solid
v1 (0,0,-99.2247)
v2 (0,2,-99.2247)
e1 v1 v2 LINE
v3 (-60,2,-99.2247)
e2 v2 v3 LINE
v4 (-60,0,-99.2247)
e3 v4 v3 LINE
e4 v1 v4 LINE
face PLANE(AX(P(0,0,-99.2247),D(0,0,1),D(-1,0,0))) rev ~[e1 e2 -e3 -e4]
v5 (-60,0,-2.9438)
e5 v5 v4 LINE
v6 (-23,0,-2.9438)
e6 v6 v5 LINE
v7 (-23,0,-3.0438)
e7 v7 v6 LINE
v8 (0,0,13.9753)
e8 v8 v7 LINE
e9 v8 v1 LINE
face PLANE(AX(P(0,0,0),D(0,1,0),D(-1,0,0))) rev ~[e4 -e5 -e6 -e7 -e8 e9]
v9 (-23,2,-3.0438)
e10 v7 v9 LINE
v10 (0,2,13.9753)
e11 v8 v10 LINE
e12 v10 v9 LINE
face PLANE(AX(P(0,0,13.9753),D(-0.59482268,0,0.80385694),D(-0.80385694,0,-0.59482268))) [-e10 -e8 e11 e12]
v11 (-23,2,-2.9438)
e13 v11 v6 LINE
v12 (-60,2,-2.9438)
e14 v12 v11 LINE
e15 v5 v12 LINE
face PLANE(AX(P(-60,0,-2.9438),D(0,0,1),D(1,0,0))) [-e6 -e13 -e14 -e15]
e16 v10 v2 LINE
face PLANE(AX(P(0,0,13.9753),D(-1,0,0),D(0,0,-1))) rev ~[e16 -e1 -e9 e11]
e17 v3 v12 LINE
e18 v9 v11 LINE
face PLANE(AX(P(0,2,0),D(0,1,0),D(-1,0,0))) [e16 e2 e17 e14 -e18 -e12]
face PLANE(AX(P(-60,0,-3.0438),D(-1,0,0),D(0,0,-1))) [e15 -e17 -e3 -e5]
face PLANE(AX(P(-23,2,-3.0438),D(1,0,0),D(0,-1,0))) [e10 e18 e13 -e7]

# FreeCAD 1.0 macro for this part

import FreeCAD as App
import Part
import Sketcher

V = App.Vector
Q = App.Units.Quantity


def add_polygon(sketch, points):
    """Adds a closed chain of lines whose ends are joined by coincident constraints."""
    first, n = sketch.GeometryCount, len(points)
    for a, b in zip(points, points[1:] + points[:1]):
        sketch.addGeometry(Part.LineSegment(App.Vector(*a, 0), App.Vector(*b, 0)), False)
    for i in range(n):
        sketch.addConstraint(Sketcher.Constraint("Coincident", first + i, 2, first + (i + 1) % n, 1))

doc = App.newDocument("Part")
body = doc.addObject("PartDesign::Body", "Body")

# Sketch on XZ plane
sketch1 = body.newObject("Sketcher::SketchObject", "Sketch")
sketch1.AttachmentSupport = (doc.getObject("XZ_Plane"), [""])
sketch1.MapMode = "FlatFace"
add_polygon(sketch1, [(-23, -3.0438), (0, 13.9753), (0, -99.2247), (-60, -99.2247), (-60, -3.0438)])  # lines 0-4
sketch1.addConstraint([
    Sketcher.Constraint("Vertical", 1),
    Sketcher.Constraint("Horizontal", 2),
    Sketcher.Constraint("Vertical", 3),
    Sketcher.Constraint("Horizontal", 4),
    Sketcher.Constraint("PointOnObject", 0, 2, -2),
    Sketcher.Constraint("DistanceX", 2, 2, 2, 1, Q("60 mm")),
    Sketcher.Constraint("DistanceX", 4, 1, 4, 2, Q("37 mm")),
    Sketcher.Constraint("DistanceY", 1, 2, 1, 1, Q("113.2 mm")),
    Sketcher.Constraint("Angle", 0, Q("36.5 deg")),
    Sketcher.Constraint("DistanceY", -1, 1, 0, 2, Q("13.9753 mm")),
])
pad1 = body.newObject("PartDesign::Pad", "Pad")
pad1.Profile = sketch1
pad1.Length = 2
pad1.Reversed = True

# Sketch on XY plane
sketch2 = body.newObject("Sketcher::SketchObject", "Sketch001")
sketch2.AttachmentSupport = (doc.getObject("XY_Plane"), [""])
sketch2.MapMode = "FlatFace"
sketch2.AttachmentOffset = App.Placement(V(0, 0, -3.0438), App.Rotation())
add_polygon(sketch2, [(-60, 2), (-60, 0), (-23, 0), (-23, 2)])  # lines 0-3
sketch2.addConstraint([
    Sketcher.Constraint("Vertical", 0),
    Sketcher.Constraint("Horizontal", 1),
    Sketcher.Constraint("Vertical", 2),
    Sketcher.Constraint("Horizontal", 3),
    Sketcher.Constraint("PointOnObject", 0, 2, -1),
    Sketcher.Constraint("DistanceX", 1, 1, 1, 2, Q("37 mm")),
    Sketcher.Constraint("DistanceY", 0, 2, 0, 1, Q("2 mm")),
    Sketcher.Constraint("DistanceX", 0, 2, -1, 1, Q("60 mm")),
])
pad2 = body.newObject("PartDesign::Pad", "Pad001")
pad2.Profile = sketch2
pad2.Length = 0.1

doc.recompute()
